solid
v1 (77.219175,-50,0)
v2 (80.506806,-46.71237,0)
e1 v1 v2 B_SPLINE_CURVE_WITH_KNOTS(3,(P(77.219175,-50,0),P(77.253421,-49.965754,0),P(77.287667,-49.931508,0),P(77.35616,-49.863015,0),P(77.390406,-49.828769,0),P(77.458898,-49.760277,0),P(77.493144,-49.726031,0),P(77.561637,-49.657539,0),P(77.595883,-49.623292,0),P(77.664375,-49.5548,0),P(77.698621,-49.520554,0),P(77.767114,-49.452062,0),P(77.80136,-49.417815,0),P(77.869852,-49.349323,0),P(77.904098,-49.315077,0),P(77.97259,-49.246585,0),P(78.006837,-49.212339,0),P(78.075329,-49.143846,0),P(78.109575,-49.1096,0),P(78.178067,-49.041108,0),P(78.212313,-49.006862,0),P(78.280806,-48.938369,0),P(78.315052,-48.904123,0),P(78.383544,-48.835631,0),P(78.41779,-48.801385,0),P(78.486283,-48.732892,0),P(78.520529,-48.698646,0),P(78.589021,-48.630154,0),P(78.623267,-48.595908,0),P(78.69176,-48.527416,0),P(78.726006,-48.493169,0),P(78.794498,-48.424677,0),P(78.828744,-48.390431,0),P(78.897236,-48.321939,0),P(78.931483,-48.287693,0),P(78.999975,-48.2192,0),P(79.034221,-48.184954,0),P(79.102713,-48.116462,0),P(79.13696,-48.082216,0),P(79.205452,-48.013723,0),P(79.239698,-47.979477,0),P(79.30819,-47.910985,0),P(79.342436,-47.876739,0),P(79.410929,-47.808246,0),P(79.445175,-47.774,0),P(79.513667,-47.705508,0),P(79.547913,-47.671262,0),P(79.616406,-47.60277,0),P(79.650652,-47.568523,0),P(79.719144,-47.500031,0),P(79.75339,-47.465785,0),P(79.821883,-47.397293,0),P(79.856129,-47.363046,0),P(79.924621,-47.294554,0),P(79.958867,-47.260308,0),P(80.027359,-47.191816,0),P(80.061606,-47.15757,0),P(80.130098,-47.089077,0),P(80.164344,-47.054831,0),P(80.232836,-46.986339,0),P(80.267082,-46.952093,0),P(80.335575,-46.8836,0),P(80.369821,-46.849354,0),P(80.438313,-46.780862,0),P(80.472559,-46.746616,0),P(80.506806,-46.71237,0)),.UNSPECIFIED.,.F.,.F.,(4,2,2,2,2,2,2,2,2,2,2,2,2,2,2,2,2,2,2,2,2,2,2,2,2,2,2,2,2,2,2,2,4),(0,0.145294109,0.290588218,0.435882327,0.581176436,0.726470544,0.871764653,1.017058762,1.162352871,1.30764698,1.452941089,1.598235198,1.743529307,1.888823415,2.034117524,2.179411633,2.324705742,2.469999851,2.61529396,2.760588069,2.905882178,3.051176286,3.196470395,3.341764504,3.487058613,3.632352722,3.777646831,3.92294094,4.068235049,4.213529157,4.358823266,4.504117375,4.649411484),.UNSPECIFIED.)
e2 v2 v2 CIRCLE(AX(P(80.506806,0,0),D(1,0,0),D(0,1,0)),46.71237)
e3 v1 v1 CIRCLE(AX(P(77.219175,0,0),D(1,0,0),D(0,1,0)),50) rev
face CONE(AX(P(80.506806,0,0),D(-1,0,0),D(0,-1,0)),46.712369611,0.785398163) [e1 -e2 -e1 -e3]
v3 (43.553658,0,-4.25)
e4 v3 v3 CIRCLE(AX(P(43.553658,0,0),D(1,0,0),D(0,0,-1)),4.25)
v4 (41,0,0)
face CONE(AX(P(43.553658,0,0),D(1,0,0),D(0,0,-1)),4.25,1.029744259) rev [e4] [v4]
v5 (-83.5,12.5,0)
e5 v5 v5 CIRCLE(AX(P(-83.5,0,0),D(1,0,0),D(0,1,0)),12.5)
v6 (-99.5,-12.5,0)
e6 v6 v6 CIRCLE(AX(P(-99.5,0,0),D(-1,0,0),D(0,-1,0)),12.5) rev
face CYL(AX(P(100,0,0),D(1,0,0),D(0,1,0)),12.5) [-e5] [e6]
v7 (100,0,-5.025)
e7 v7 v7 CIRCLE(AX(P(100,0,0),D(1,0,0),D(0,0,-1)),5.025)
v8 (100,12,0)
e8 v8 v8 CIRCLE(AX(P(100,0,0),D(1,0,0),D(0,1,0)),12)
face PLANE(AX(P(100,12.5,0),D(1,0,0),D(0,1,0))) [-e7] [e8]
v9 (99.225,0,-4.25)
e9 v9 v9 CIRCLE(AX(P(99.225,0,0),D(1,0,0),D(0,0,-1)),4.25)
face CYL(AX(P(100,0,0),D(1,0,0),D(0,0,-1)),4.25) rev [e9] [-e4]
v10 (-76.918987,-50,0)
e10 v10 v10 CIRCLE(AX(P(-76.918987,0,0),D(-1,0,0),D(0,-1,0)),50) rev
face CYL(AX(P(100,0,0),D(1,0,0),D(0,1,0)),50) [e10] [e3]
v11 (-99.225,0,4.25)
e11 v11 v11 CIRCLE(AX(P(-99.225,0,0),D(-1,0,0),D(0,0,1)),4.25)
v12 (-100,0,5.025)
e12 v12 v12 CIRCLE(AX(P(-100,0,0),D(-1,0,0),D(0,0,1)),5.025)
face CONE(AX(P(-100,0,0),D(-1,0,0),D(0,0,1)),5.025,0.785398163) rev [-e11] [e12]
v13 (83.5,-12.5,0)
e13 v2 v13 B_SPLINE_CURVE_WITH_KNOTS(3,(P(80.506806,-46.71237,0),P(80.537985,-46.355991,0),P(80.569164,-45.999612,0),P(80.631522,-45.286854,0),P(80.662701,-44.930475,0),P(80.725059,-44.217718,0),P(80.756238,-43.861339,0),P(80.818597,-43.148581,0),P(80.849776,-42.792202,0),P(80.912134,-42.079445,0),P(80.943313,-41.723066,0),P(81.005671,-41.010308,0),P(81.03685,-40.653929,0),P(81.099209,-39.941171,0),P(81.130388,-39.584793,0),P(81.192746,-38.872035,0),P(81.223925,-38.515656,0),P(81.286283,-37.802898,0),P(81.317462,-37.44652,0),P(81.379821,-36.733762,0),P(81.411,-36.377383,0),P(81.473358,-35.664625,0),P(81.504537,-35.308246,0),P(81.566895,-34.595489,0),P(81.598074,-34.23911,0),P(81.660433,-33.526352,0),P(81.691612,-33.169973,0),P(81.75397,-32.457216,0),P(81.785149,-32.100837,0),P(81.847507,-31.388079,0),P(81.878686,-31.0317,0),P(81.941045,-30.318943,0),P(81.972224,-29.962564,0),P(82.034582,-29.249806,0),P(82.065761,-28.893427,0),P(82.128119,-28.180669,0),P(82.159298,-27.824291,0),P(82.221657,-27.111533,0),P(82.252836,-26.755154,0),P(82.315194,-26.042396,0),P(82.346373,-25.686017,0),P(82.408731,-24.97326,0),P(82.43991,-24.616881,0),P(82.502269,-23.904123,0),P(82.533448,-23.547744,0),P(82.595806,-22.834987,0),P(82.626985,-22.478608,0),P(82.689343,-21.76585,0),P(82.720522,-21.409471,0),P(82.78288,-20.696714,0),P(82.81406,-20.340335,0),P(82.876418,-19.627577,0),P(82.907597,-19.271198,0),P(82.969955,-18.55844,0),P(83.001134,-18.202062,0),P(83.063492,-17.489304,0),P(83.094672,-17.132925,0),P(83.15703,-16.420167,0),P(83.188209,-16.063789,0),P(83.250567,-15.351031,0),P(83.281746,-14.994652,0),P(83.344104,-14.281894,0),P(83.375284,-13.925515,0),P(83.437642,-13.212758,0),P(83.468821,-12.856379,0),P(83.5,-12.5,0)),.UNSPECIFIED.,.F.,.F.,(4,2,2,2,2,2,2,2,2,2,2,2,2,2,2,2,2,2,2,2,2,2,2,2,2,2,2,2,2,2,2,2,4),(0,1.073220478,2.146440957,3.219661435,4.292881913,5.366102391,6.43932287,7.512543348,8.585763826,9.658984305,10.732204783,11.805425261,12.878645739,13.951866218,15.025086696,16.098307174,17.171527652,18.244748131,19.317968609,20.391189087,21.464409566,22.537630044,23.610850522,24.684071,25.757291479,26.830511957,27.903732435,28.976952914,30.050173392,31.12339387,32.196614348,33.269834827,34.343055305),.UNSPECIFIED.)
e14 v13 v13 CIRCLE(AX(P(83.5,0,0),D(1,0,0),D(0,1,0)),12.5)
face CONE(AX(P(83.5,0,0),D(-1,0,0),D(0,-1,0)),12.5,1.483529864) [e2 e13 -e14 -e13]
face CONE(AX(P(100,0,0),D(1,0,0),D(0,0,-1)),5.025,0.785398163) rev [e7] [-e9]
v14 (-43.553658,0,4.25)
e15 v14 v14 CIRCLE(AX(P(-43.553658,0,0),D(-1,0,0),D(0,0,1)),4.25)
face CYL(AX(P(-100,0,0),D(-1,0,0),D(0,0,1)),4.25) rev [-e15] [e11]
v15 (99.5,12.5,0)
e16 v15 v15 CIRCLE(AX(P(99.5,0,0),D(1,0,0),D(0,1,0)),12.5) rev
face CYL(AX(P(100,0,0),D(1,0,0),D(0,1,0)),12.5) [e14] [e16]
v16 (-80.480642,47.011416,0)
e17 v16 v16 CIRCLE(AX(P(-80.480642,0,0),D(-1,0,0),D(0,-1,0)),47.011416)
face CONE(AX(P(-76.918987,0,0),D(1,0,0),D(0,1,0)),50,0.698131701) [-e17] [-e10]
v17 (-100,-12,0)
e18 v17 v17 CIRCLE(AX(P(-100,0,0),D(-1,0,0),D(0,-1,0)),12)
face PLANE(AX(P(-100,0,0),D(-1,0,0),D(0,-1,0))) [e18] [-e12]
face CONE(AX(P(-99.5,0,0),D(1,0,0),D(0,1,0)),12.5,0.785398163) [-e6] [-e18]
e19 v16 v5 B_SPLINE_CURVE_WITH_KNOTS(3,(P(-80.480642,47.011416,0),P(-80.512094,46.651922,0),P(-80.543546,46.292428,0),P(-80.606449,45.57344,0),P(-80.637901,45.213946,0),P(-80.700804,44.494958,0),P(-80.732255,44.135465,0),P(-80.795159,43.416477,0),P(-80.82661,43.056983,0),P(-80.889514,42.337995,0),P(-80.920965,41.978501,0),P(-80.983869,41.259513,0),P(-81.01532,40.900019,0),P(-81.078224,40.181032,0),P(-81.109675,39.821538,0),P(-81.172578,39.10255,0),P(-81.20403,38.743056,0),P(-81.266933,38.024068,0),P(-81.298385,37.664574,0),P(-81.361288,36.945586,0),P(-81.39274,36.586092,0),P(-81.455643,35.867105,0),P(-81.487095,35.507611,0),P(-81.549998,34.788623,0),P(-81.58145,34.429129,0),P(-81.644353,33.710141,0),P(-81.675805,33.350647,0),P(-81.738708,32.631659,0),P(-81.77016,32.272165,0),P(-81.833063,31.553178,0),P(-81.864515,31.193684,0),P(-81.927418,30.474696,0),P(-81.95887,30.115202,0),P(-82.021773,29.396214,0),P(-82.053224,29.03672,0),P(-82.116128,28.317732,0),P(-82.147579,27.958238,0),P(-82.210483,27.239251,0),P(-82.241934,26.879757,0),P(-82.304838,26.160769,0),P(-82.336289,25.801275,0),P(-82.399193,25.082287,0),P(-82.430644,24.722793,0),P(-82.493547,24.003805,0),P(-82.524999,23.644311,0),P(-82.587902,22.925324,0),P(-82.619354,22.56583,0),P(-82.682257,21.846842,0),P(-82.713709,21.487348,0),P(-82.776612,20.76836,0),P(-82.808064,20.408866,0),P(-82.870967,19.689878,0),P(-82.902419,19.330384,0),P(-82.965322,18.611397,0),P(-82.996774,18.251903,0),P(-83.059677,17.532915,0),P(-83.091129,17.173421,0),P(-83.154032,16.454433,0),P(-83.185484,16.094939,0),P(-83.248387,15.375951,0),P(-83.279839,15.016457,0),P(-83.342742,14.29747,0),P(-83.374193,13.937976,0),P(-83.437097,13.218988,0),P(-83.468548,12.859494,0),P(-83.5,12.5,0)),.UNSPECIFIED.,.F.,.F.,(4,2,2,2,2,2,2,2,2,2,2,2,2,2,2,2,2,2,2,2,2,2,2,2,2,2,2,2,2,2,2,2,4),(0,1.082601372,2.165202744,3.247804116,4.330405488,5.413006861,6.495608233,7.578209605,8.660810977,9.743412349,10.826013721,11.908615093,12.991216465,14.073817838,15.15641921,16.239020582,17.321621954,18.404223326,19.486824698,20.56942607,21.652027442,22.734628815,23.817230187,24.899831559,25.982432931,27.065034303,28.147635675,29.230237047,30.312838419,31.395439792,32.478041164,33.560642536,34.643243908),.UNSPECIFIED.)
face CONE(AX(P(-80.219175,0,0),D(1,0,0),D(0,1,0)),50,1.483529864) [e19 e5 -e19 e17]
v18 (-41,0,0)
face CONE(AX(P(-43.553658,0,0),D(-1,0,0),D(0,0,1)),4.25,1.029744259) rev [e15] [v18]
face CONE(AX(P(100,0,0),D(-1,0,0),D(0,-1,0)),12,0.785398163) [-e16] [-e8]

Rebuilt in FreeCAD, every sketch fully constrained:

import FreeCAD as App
import Part
import Sketcher
from FreeCAD import Vector
Q = App.Units.Quantity


def edges_at(feature, points):
    """Names of the edges that pass closest to the given points."""
    edges = feature.Shape.Edges
    near = lambda p: min(range(len(edges)), key=lambda i: edges[i].distToShape(Part.Vertex(*p))[0])
    return sorted({f"Edge{near(p) + 1}" for p in points})

doc = App.newDocument("Part")
body = doc.addObject("PartDesign::Body", "Body")

# Sketch on XY plane
sketch1 = body.newObject("Sketcher::SketchObject", "Sketch")
sketch1.AttachmentSupport = (doc.getObject("XY_Plane"), [""])
sketch1.MapMode = "FlatFace"
sketch1.addGeometry(Part.LineSegment(Vector(-100, 12, 0), Vector(-100, 0, 0)), False)
sketch1.addGeometry(Part.LineSegment(Vector(-100, 0, 0), Vector(100, 0, 0)), False)
sketch1.addGeometry(Part.LineSegment(Vector(100, 0, 0), Vector(100, 12, 0)), False)
sketch1.addGeometry(Part.LineSegment(Vector(100, 12, 0), Vector(84, 12, 0)), False)
sketch1.addGeometry(Part.LineSegment(Vector(84, 12, 0), Vector(80, 50, 0)), False)
sketch1.addGeometry(Part.LineSegment(Vector(80, 50, 0), Vector(-80, 50, 0)), False)
sketch1.addGeometry(Part.LineSegment(Vector(-80, 50, 0), Vector(-84, 12, 0)), False)
sketch1.addGeometry(Part.LineSegment(Vector(-84, 12, 0), Vector(-100, 12, 0)), False)
sketch1.addConstraint(Sketcher.Constraint("Coincident", 0, 2, 1, 1))
sketch1.addConstraint(Sketcher.Constraint("Coincident", 1, 2, 2, 1))
sketch1.addConstraint(Sketcher.Constraint("Coincident", 2, 2, 3, 1))
sketch1.addConstraint(Sketcher.Constraint("Coincident", 3, 2, 4, 1))
sketch1.addConstraint(Sketcher.Constraint("Coincident", 4, 2, 5, 1))
sketch1.addConstraint(Sketcher.Constraint("Coincident", 5, 2, 6, 1))
sketch1.addConstraint(Sketcher.Constraint("Coincident", 6, 2, 7, 1))
sketch1.addConstraint(Sketcher.Constraint("Coincident", 7, 2, 0, 1))
sketch1.addConstraint(Sketcher.Constraint("Vertical", 0))
sketch1.addConstraint(Sketcher.Constraint("Horizontal", 1))
sketch1.addConstraint(Sketcher.Constraint("Vertical", 2))
sketch1.addConstraint(Sketcher.Constraint("Horizontal", 3))
sketch1.addConstraint(Sketcher.Constraint("Horizontal", 5))
sketch1.addConstraint(Sketcher.Constraint("Horizontal", 7))
sketch1.addConstraint(Sketcher.Constraint("Symmetric", 0, 2, 1, 2, -1, 1))
sketch1.addConstraint(Sketcher.Constraint("Symmetric", 3, 2, 6, 2, -2))
sketch1.addConstraint(Sketcher.Constraint("Equal", 4, 6))
sketch1.addConstraint(Sketcher.Constraint("DistanceX", 1, 1, 1, 2, Q("200 mm")))
sketch1.addConstraint(Sketcher.Constraint("Angle", 4, Q("95 deg")))
sketch1.addConstraint(Sketcher.Constraint("DistanceX", 3, 2, 3, 1, Q("16.5 mm")))
sketch1.addConstraint(Sketcher.Constraint("DistanceY", 0, 2, 0, 1, Q("12.5 mm")))
sketch1.addConstraint(Sketcher.Constraint("DistanceY", -1, 1, 4, 2, Q("50 mm")))
revolution = body.newObject("PartDesign::Revolution", "Revolution")
revolution.Profile = sketch1
revolution.ReferenceAxis = (sketch1, ["H_Axis"])
revolution.Angle = 360
doc.recompute()

chamfer = body.newObject("PartDesign::Chamfer", "Chamfer")
chamfer.Base = (revolution, edges_at(revolution, [(-100, -12.5, 0)]))
chamfer.Size = 0.5
doc.recompute()

chamfer2 = body.newObject("PartDesign::Chamfer", "Chamfer001")
chamfer2.Base = (chamfer, edges_at(chamfer, [(-80.219, -50, 0)]))
chamfer2.ChamferType = "Two distances"
chamfer2.Size = 3
chamfer2.Size2 = 3.300189
doc.recompute()

chamfer3 = body.newObject("PartDesign::Chamfer", "Chamfer002")
chamfer3.Base = (chamfer2, edges_at(chamfer2, [(80.219, -50, 0)]))
chamfer3.ChamferType = "Two distances"
chamfer3.Size = 3
chamfer3.Size2 = 3.300189
doc.recompute()

chamfer4 = body.newObject("PartDesign::Chamfer", "Chamfer003")
chamfer4.Base = (chamfer3, edges_at(chamfer3, [(100, -12.5, 0)]))
chamfer4.Size = 0.5

# Sketch on XZ plane
sketch2 = body.newObject("Sketcher::SketchObject", "Sketch001")
sketch2.AttachmentSupport = (doc.getObject("XZ_Plane"), [""])
sketch2.MapMode = "FlatFace"
sketch2.addGeometry(Part.LineSegment(Vector(41, 0, 0), Vector(100, 0, 0)), False)
sketch2.addGeometry(Part.LineSegment(Vector(100, 0, 0), Vector(100, -5, 0)), False)
sketch2.addGeometry(Part.LineSegment(Vector(100, -5, 0), Vector(99.2, -4.2, 0)), False)
sketch2.addGeometry(Part.LineSegment(Vector(99.2, -4.2, 0), Vector(43.6, -4.2, 0)), False)
sketch2.addGeometry(Part.LineSegment(Vector(43.6, -4.2, 0), Vector(41, 0, 0)), False)
sketch2.addConstraint(Sketcher.Constraint("Coincident", 0, 2, 1, 1))
sketch2.addConstraint(Sketcher.Constraint("Coincident", 1, 2, 2, 1))
sketch2.addConstraint(Sketcher.Constraint("Coincident", 2, 2, 3, 1))
sketch2.addConstraint(Sketcher.Constraint("Coincident", 3, 2, 4, 1))
sketch2.addConstraint(Sketcher.Constraint("Coincident", 4, 2, 0, 1))
sketch2.addConstraint(Sketcher.Constraint("Horizontal", 0))
sketch2.addConstraint(Sketcher.Constraint("Vertical", 1))
sketch2.addConstraint(Sketcher.Constraint("Horizontal", 3))
sketch2.addConstraint(Sketcher.Constraint("PointOnObject", 0, 2, -1))
sketch2.addConstraint(Sketcher.Constraint("DistanceX", 0, 1, 0, 2, Q("59 mm")))
sketch2.addConstraint(Sketcher.Constraint("Angle", 2, Q("135 deg")))
sketch2.addConstraint(Sketcher.Constraint("Angle", 4, Q("121 deg")))
sketch2.addConstraint(Sketcher.Constraint("DistanceX", -1, 1, 0, 2, Q("100 mm")))
sketch2.addConstraint(Sketcher.Constraint("DistanceY", 1, 2, 1, 1, Q("5.025 mm")))
sketch2.addConstraint(Sketcher.Constraint("DistanceY", 2, 2, -1, 1, Q("4.25 mm")))
groove = body.newObject("PartDesign::Groove", "Groove")
groove.Profile = sketch2
groove.ReferenceAxis = (sketch2, ["H_Axis"])
groove.Angle = 360

# Sketch on YZ plane
sketch3 = body.newObject("Sketcher::SketchObject", "Sketch002")
sketch3.AttachmentSupport = (doc.getObject("YZ_Plane"), [""])
sketch3.MapMode = "FlatFace"
sketch3.AttachmentOffset = App.Placement(Vector(0, 0, -100), App.Rotation())
sketch3.addGeometry(Part.Circle(Vector(0, 0, 0), Vector(0, 0, 1), 4.2), False)
sketch3.addConstraint(Sketcher.Constraint("Coincident", 0, 3, -1, 1))
sketch3.addConstraint(Sketcher.Constraint("Diameter", 0, Q("8.5 mm")))
doc.recompute()
hole = body.newObject("PartDesign::Hole", "Hole")
hole.Profile = sketch3
hole.ThreadType = "None"
hole.Diameter = 8.5
hole.DepthType = "Dimension"
hole.Depth = 56.446342
hole.DrillPoint = "Angled"
hole.DrillPointAngle = 118
hole.HoleCutType = "Countersink"
hole.HoleCutDiameter = 10.05
hole.HoleCutCountersinkAngle = 90
hole.Reversed = True

doc.recompute()
